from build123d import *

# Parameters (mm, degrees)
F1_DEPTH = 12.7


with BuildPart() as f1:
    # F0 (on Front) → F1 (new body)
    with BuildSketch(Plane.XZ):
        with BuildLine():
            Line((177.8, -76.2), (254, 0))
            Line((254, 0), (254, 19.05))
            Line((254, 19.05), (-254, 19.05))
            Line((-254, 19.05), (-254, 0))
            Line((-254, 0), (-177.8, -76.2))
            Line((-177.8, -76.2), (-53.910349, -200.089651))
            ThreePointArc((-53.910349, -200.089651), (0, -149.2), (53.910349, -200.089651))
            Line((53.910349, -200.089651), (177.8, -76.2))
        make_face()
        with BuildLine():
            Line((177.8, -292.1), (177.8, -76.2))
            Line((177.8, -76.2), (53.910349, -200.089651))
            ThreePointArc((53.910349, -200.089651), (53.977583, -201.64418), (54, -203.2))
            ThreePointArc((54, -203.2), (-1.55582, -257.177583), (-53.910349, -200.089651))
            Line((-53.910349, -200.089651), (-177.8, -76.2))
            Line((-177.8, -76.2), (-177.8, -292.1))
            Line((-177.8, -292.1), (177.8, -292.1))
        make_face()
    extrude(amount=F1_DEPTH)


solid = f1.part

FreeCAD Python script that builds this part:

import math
import FreeCAD as App
import Part
import Sketcher
from FreeCAD import Vector
Q = App.Units.Quantity

doc = App.newDocument("Part")
body = doc.addObject("PartDesign::Body", "Body")

sketch1 = body.newObject("Sketcher::SketchObject", "Sketch")
sketch1.AttachmentSupport = (doc.getObject("XZ_Plane"), [""])
sketch1.MapMode = "FlatFace"
sketch1.addGeometry(Part.LineSegment(Vector(254, 0, 0), Vector(254, 19.05, 0)), False)
sketch1.addGeometry(Part.LineSegment(Vector(254, 19.05, 0), Vector(-254, 19.05, 0)), False)
sketch1.addGeometry(Part.LineSegment(Vector(-254, 19.05, 0), Vector(-254, 0, 0)), False)
sketch1.addGeometry(Part.LineSegment(Vector(-254, 0, 0), Vector(-177.8, -76.2, 0)), False)
sketch1.addGeometry(Part.LineSegment(Vector(-177.8, -76.2, 0), Vector(-177.8, -292.1, 0)), False)
sketch1.addGeometry(Part.LineSegment(Vector(-177.8, -292.1, 0), Vector(177.8, -292.1, 0)), False)
sketch1.addGeometry(Part.LineSegment(Vector(177.8, -292.1, 0), Vector(177.8, -76.2, 0)), False)
sketch1.addGeometry(Part.LineSegment(Vector(177.8, -76.2, 0), Vector(254, 0, 0)), False)
sketch1.addGeometry(Part.ArcOfCircle(Part.Circle(Vector(0, -203.2, 0), Vector(0, 0, 1), 54), math.radians(3.30201), math.radians(176.69799)), False)
sketch1.addGeometry(Part.ArcOfCircle(Part.Circle(Vector(0.000943, -203.199973, 0), Vector(0, 0, 1), 53.999057), math.radians(-0.000029), math.radians(3.302039)), False)
sketch1.addGeometry(Part.ArcOfCircle(Part.Circle(Vector(0, -203.2, 0), Vector(0, 0, 1), 54), math.radians(176.697989), math.radians(360)), False)
sketch1.addConstraint(Sketcher.Constraint("Coincident", 0, 2, 1, 1))
sketch1.addConstraint(Sketcher.Constraint("Coincident", 1, 2, 2, 1))
sketch1.addConstraint(Sketcher.Constraint("Coincident", 2, 2, 3, 1))
sketch1.addConstraint(Sketcher.Constraint("Coincident", 3, 2, 4, 1))
sketch1.addConstraint(Sketcher.Constraint("Coincident", 4, 2, 5, 1))
sketch1.addConstraint(Sketcher.Constraint("Coincident", 5, 2, 6, 1))
sketch1.addConstraint(Sketcher.Constraint("Coincident", 6, 2, 7, 1))
sketch1.addConstraint(Sketcher.Constraint("Coincident", 7, 2, 0, 1))
sketch1.addConstraint(Sketcher.Constraint("Coincident", 8, 1, 9, 2))
sketch1.addConstraint(Sketcher.Constraint("Coincident", 9, 1, 10, 2))
sketch1.addConstraint(Sketcher.Constraint("Coincident", 10, 1, 8, 2))
sketch1.addConstraint(Sketcher.Constraint("Vertical", 0))
sketch1.addConstraint(Sketcher.Constraint("Horizontal", 1))
sketch1.addConstraint(Sketcher.Constraint("Vertical", 2))
sketch1.addConstraint(Sketcher.Constraint("Vertical", 4))
sketch1.addConstraint(Sketcher.Constraint("Horizontal", 5))
sketch1.addConstraint(Sketcher.Constraint("Vertical", 6))
sketch1.addConstraint(Sketcher.Constraint("Coincident", 10, 3, 8, 3))
sketch1.addConstraint(Sketcher.Constraint("PointOnObject", 8, 3, -2))
sketch1.addConstraint(Sketcher.Constraint("PointOnObject", 2, 2, -1))
sketch1.addConstraint(Sketcher.Constraint("PointOnObject", 7, 2, -1))
sketch1.addConstraint(Sketcher.Constraint("DistanceX", 1, 2, 1, 1, Q("20 in")))
sketch1.addConstraint(Sketcher.Constraint("DistanceX", 5, 1, 5, 2, Q("14 in")))
sketch1.addConstraint(Sketcher.Constraint("DistanceY", 4, 2, 4, 1, Q("8.5 in")))
sketch1.addConstraint(Sketcher.Constraint("DistanceY", 6, 1, 6, 2, Q("8.5 in")))
sketch1.addConstraint(Sketcher.Constraint("DistanceY", 8, 3, -1, 1, Q("8 in")))
sketch1.addConstraint(Sketcher.Constraint("DistanceX", -1, 1, 0, 2, Q("10 in")))
sketch1.addConstraint(Sketcher.Constraint("DistanceX", 3, 2, -1, 1, Q("7 in")))
sketch1.addConstraint(Sketcher.Constraint("DistanceY", 3, 2, -1, 1, Q("3 in")))
sketch1.addConstraint(Sketcher.Constraint("DistanceY", 9, 1, -1, 1, Q("8 in")))
sketch1.addConstraint(Sketcher.Constraint("DistanceY", 0, 1, 0, 2, Q("0.75 in")))
sketch1.addConstraint(Sketcher.Constraint("Radius", 8, Q("54 mm")))
sketch1.addConstraint(Sketcher.Constraint("Radius", 9, Q("53.999057 mm")))
sketch1.addConstraint(Sketcher.Constraint("DistanceX", 10, 1, 8, 1, Q("107.820698 mm")))
sketch1.addConstraint(Sketcher.Constraint("DistanceX", -1, 1, 8, 1, Q("53.910349 mm")))
pad1 = body.newObject("PartDesign::Pad", "Pad")
pad1.Profile = sketch1
pad1.Length = Q("0.5 in")

doc.recompute()
